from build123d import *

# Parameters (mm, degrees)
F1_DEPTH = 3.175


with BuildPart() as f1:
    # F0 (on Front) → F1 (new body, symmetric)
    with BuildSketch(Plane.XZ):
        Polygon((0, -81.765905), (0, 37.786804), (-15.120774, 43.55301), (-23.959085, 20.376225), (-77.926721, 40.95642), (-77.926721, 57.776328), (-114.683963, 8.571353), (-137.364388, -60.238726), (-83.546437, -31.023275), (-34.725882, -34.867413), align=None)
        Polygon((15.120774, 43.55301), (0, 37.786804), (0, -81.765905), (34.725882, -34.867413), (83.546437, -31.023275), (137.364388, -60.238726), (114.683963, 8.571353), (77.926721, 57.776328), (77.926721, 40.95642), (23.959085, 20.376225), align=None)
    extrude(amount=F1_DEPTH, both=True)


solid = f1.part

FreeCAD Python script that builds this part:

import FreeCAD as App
import Part
import Sketcher
Q = App.Units.Quantity

doc = App.newDocument("Part")
body = doc.addObject("PartDesign::Body", "Body")

# Sketch on XZ plane
sketch1 = body.newObject("Sketcher::SketchObject", "Sketch")
sketch1.AttachmentSupport = (doc.getObject("XZ_Plane"), [""])
sketch1.MapMode = "FlatFace"
sketch1.addGeometry(Part.LineSegment(App.Vector(0, 37.786804, 0), App.Vector(-15.120774, 43.55301, 0)), False)
sketch1.addGeometry(Part.LineSegment(App.Vector(-15.120774, 43.55301, 0), App.Vector(-23.959085, 20.376225, 0)), False)
sketch1.addGeometry(Part.LineSegment(App.Vector(-23.959085, 20.376225, 0), App.Vector(-77.926721, 40.95642, 0)), False)
sketch1.addGeometry(Part.LineSegment(App.Vector(-77.926721, 40.95642, 0), App.Vector(-77.926721, 57.776328, 0)), False)
sketch1.addGeometry(Part.LineSegment(App.Vector(-77.926721, 57.776328, 0), App.Vector(-114.683963, 8.571353, 0)), False)
sketch1.addGeometry(Part.LineSegment(App.Vector(-114.683963, 8.571353, 0), App.Vector(-137.364388, -60.238726, 0)), False)
sketch1.addGeometry(Part.LineSegment(App.Vector(-137.364388, -60.238726, 0), App.Vector(-83.546437, -31.023275, 0)), False)
sketch1.addGeometry(Part.LineSegment(App.Vector(-83.546437, -31.023275, 0), App.Vector(-34.725882, -34.867413, 0)), False)
sketch1.addGeometry(Part.LineSegment(App.Vector(-34.725882, -34.867413, 0), App.Vector(0, -81.765905, 0)), False)
sketch1.addGeometry(Part.LineSegment(App.Vector(0, -81.765905, 0), App.Vector(34.725882, -34.867413, 0)), False)
sketch1.addGeometry(Part.LineSegment(App.Vector(34.725882, -34.867413, 0), App.Vector(83.546437, -31.023275, 0)), False)
sketch1.addGeometry(Part.LineSegment(App.Vector(83.546437, -31.023275, 0), App.Vector(137.364388, -60.238726, 0)), False)
sketch1.addGeometry(Part.LineSegment(App.Vector(137.364388, -60.238726, 0), App.Vector(114.683963, 8.571353, 0)), False)
sketch1.addGeometry(Part.LineSegment(App.Vector(114.683963, 8.571353, 0), App.Vector(77.926721, 57.776328, 0)), False)
sketch1.addGeometry(Part.LineSegment(App.Vector(77.926721, 57.776328, 0), App.Vector(77.926721, 40.95642, 0)), False)
sketch1.addGeometry(Part.LineSegment(App.Vector(77.926721, 40.95642, 0), App.Vector(23.959085, 20.376225, 0)), False)
sketch1.addGeometry(Part.LineSegment(App.Vector(23.959085, 20.376225, 0), App.Vector(15.120774, 43.55301, 0)), False)
sketch1.addGeometry(Part.LineSegment(App.Vector(15.120774, 43.55301, 0), App.Vector(0, 37.786804, 0)), False)
sketch1.addConstraint(Sketcher.Constraint("Coincident", 0, 2, 1, 1))
sketch1.addConstraint(Sketcher.Constraint("Coincident", 1, 2, 2, 1))
sketch1.addConstraint(Sketcher.Constraint("Coincident", 2, 2, 3, 1))
sketch1.addConstraint(Sketcher.Constraint("Coincident", 3, 2, 4, 1))
sketch1.addConstraint(Sketcher.Constraint("Coincident", 4, 2, 5, 1))
sketch1.addConstraint(Sketcher.Constraint("Coincident", 5, 2, 6, 1))
sketch1.addConstraint(Sketcher.Constraint("Coincident", 6, 2, 7, 1))
sketch1.addConstraint(Sketcher.Constraint("Coincident", 7, 2, 8, 1))
sketch1.addConstraint(Sketcher.Constraint("Coincident", 8, 2, 9, 1))
sketch1.addConstraint(Sketcher.Constraint("Coincident", 9, 2, 10, 1))
sketch1.addConstraint(Sketcher.Constraint("Coincident", 10, 2, 11, 1))
sketch1.addConstraint(Sketcher.Constraint("Coincident", 11, 2, 12, 1))
sketch1.addConstraint(Sketcher.Constraint("Coincident", 12, 2, 13, 1))
sketch1.addConstraint(Sketcher.Constraint("Coincident", 13, 2, 14, 1))
sketch1.addConstraint(Sketcher.Constraint("Coincident", 14, 2, 15, 1))
sketch1.addConstraint(Sketcher.Constraint("Coincident", 15, 2, 16, 1))
sketch1.addConstraint(Sketcher.Constraint("Coincident", 16, 2, 17, 1))
sketch1.addConstraint(Sketcher.Constraint("Coincident", 17, 2, 0, 1))
sketch1.addConstraint(Sketcher.Constraint("Vertical", 3))
sketch1.addConstraint(Sketcher.Constraint("Vertical", 14))
sketch1.addConstraint(Sketcher.Constraint("Symmetric", 7, 2, 9, 2, -2))
sketch1.addConstraint(Sketcher.Constraint("Symmetric", 6, 2, 10, 2, -2))
sketch1.addConstraint(Sketcher.Constraint("Symmetric", 5, 2, 11, 2, -2))
sketch1.addConstraint(Sketcher.Constraint("Symmetric", 4, 2, 12, 2, -2))
sketch1.addConstraint(Sketcher.Constraint("Symmetric", 3, 2, 13, 2, -2))
sketch1.addConstraint(Sketcher.Constraint("Symmetric", 1, 2, 15, 2, -2))
sketch1.addConstraint(Sketcher.Constraint("Symmetric", 0, 2, 16, 2, -2))
sketch1.addConstraint(Sketcher.Constraint("PointOnObject", 8, 2, -2))
sketch1.addConstraint(Sketcher.Constraint("PointOnObject", 17, 2, -2))
sketch1.addConstraint(Sketcher.Constraint("Perpendicular", 0, 1))
sketch1.addConstraint(Sketcher.Constraint("Perpendicular", 1, 2))
sketch1.addConstraint(Sketcher.Constraint("Perpendicular", 15, 16))
sketch1.addConstraint(Sketcher.Constraint("DistanceY", 6, 2, 1, 2, 51.3995))
sketch1.addConstraint(Sketcher.Constraint("Distance", 0, 16.182921))
sketch1.addConstraint(Sketcher.Constraint("Distance", 1, 24.80482))
sketch1.addConstraint(Sketcher.Constraint("Distance", 2, 57.758551))
sketch1.addConstraint(Sketcher.Constraint("Distance", 5, 72.451561))
sketch1.addConstraint(Sketcher.Constraint("DistanceY", 3, 1, 3, 2, 16.819908))
sketch1.addConstraint(Sketcher.Constraint("DistanceY", -1, 1, 0, 2, 43.55301))
sketch1.addConstraint(Sketcher.Constraint("DistanceX", 2, 2, -1, 1, 77.926721))
sketch1.addConstraint(Sketcher.Constraint("DistanceX", 5, 2, -1, 1, 137.364388))
sketch1.addConstraint(Sketcher.Constraint("DistanceX", 4, 2, 1, 2, 90.724878))
sketch1.addConstraint(Sketcher.Constraint("DistanceY", 5, 2, 1, 2, 80.614951))
sketch1.addConstraint(Sketcher.Constraint("DistanceX", 5, 2, 6, 2, 53.817951))
sketch1.addConstraint(Sketcher.Constraint("DistanceY", 7, 2, 1, 2, 55.243638))
sketch1.addConstraint(Sketcher.Constraint("DistanceX", 2, 2, 7, 2, 43.200839))
sketch1.addConstraint(Sketcher.Constraint("DistanceY", 8, 2, 6, 2, 50.74263))
pad1 = body.newObject("PartDesign::Pad", "Pad")
pad1.Profile = sketch1
pad1.Length = Q("0.25 in")
pad1.Midplane = True

doc.recompute()
